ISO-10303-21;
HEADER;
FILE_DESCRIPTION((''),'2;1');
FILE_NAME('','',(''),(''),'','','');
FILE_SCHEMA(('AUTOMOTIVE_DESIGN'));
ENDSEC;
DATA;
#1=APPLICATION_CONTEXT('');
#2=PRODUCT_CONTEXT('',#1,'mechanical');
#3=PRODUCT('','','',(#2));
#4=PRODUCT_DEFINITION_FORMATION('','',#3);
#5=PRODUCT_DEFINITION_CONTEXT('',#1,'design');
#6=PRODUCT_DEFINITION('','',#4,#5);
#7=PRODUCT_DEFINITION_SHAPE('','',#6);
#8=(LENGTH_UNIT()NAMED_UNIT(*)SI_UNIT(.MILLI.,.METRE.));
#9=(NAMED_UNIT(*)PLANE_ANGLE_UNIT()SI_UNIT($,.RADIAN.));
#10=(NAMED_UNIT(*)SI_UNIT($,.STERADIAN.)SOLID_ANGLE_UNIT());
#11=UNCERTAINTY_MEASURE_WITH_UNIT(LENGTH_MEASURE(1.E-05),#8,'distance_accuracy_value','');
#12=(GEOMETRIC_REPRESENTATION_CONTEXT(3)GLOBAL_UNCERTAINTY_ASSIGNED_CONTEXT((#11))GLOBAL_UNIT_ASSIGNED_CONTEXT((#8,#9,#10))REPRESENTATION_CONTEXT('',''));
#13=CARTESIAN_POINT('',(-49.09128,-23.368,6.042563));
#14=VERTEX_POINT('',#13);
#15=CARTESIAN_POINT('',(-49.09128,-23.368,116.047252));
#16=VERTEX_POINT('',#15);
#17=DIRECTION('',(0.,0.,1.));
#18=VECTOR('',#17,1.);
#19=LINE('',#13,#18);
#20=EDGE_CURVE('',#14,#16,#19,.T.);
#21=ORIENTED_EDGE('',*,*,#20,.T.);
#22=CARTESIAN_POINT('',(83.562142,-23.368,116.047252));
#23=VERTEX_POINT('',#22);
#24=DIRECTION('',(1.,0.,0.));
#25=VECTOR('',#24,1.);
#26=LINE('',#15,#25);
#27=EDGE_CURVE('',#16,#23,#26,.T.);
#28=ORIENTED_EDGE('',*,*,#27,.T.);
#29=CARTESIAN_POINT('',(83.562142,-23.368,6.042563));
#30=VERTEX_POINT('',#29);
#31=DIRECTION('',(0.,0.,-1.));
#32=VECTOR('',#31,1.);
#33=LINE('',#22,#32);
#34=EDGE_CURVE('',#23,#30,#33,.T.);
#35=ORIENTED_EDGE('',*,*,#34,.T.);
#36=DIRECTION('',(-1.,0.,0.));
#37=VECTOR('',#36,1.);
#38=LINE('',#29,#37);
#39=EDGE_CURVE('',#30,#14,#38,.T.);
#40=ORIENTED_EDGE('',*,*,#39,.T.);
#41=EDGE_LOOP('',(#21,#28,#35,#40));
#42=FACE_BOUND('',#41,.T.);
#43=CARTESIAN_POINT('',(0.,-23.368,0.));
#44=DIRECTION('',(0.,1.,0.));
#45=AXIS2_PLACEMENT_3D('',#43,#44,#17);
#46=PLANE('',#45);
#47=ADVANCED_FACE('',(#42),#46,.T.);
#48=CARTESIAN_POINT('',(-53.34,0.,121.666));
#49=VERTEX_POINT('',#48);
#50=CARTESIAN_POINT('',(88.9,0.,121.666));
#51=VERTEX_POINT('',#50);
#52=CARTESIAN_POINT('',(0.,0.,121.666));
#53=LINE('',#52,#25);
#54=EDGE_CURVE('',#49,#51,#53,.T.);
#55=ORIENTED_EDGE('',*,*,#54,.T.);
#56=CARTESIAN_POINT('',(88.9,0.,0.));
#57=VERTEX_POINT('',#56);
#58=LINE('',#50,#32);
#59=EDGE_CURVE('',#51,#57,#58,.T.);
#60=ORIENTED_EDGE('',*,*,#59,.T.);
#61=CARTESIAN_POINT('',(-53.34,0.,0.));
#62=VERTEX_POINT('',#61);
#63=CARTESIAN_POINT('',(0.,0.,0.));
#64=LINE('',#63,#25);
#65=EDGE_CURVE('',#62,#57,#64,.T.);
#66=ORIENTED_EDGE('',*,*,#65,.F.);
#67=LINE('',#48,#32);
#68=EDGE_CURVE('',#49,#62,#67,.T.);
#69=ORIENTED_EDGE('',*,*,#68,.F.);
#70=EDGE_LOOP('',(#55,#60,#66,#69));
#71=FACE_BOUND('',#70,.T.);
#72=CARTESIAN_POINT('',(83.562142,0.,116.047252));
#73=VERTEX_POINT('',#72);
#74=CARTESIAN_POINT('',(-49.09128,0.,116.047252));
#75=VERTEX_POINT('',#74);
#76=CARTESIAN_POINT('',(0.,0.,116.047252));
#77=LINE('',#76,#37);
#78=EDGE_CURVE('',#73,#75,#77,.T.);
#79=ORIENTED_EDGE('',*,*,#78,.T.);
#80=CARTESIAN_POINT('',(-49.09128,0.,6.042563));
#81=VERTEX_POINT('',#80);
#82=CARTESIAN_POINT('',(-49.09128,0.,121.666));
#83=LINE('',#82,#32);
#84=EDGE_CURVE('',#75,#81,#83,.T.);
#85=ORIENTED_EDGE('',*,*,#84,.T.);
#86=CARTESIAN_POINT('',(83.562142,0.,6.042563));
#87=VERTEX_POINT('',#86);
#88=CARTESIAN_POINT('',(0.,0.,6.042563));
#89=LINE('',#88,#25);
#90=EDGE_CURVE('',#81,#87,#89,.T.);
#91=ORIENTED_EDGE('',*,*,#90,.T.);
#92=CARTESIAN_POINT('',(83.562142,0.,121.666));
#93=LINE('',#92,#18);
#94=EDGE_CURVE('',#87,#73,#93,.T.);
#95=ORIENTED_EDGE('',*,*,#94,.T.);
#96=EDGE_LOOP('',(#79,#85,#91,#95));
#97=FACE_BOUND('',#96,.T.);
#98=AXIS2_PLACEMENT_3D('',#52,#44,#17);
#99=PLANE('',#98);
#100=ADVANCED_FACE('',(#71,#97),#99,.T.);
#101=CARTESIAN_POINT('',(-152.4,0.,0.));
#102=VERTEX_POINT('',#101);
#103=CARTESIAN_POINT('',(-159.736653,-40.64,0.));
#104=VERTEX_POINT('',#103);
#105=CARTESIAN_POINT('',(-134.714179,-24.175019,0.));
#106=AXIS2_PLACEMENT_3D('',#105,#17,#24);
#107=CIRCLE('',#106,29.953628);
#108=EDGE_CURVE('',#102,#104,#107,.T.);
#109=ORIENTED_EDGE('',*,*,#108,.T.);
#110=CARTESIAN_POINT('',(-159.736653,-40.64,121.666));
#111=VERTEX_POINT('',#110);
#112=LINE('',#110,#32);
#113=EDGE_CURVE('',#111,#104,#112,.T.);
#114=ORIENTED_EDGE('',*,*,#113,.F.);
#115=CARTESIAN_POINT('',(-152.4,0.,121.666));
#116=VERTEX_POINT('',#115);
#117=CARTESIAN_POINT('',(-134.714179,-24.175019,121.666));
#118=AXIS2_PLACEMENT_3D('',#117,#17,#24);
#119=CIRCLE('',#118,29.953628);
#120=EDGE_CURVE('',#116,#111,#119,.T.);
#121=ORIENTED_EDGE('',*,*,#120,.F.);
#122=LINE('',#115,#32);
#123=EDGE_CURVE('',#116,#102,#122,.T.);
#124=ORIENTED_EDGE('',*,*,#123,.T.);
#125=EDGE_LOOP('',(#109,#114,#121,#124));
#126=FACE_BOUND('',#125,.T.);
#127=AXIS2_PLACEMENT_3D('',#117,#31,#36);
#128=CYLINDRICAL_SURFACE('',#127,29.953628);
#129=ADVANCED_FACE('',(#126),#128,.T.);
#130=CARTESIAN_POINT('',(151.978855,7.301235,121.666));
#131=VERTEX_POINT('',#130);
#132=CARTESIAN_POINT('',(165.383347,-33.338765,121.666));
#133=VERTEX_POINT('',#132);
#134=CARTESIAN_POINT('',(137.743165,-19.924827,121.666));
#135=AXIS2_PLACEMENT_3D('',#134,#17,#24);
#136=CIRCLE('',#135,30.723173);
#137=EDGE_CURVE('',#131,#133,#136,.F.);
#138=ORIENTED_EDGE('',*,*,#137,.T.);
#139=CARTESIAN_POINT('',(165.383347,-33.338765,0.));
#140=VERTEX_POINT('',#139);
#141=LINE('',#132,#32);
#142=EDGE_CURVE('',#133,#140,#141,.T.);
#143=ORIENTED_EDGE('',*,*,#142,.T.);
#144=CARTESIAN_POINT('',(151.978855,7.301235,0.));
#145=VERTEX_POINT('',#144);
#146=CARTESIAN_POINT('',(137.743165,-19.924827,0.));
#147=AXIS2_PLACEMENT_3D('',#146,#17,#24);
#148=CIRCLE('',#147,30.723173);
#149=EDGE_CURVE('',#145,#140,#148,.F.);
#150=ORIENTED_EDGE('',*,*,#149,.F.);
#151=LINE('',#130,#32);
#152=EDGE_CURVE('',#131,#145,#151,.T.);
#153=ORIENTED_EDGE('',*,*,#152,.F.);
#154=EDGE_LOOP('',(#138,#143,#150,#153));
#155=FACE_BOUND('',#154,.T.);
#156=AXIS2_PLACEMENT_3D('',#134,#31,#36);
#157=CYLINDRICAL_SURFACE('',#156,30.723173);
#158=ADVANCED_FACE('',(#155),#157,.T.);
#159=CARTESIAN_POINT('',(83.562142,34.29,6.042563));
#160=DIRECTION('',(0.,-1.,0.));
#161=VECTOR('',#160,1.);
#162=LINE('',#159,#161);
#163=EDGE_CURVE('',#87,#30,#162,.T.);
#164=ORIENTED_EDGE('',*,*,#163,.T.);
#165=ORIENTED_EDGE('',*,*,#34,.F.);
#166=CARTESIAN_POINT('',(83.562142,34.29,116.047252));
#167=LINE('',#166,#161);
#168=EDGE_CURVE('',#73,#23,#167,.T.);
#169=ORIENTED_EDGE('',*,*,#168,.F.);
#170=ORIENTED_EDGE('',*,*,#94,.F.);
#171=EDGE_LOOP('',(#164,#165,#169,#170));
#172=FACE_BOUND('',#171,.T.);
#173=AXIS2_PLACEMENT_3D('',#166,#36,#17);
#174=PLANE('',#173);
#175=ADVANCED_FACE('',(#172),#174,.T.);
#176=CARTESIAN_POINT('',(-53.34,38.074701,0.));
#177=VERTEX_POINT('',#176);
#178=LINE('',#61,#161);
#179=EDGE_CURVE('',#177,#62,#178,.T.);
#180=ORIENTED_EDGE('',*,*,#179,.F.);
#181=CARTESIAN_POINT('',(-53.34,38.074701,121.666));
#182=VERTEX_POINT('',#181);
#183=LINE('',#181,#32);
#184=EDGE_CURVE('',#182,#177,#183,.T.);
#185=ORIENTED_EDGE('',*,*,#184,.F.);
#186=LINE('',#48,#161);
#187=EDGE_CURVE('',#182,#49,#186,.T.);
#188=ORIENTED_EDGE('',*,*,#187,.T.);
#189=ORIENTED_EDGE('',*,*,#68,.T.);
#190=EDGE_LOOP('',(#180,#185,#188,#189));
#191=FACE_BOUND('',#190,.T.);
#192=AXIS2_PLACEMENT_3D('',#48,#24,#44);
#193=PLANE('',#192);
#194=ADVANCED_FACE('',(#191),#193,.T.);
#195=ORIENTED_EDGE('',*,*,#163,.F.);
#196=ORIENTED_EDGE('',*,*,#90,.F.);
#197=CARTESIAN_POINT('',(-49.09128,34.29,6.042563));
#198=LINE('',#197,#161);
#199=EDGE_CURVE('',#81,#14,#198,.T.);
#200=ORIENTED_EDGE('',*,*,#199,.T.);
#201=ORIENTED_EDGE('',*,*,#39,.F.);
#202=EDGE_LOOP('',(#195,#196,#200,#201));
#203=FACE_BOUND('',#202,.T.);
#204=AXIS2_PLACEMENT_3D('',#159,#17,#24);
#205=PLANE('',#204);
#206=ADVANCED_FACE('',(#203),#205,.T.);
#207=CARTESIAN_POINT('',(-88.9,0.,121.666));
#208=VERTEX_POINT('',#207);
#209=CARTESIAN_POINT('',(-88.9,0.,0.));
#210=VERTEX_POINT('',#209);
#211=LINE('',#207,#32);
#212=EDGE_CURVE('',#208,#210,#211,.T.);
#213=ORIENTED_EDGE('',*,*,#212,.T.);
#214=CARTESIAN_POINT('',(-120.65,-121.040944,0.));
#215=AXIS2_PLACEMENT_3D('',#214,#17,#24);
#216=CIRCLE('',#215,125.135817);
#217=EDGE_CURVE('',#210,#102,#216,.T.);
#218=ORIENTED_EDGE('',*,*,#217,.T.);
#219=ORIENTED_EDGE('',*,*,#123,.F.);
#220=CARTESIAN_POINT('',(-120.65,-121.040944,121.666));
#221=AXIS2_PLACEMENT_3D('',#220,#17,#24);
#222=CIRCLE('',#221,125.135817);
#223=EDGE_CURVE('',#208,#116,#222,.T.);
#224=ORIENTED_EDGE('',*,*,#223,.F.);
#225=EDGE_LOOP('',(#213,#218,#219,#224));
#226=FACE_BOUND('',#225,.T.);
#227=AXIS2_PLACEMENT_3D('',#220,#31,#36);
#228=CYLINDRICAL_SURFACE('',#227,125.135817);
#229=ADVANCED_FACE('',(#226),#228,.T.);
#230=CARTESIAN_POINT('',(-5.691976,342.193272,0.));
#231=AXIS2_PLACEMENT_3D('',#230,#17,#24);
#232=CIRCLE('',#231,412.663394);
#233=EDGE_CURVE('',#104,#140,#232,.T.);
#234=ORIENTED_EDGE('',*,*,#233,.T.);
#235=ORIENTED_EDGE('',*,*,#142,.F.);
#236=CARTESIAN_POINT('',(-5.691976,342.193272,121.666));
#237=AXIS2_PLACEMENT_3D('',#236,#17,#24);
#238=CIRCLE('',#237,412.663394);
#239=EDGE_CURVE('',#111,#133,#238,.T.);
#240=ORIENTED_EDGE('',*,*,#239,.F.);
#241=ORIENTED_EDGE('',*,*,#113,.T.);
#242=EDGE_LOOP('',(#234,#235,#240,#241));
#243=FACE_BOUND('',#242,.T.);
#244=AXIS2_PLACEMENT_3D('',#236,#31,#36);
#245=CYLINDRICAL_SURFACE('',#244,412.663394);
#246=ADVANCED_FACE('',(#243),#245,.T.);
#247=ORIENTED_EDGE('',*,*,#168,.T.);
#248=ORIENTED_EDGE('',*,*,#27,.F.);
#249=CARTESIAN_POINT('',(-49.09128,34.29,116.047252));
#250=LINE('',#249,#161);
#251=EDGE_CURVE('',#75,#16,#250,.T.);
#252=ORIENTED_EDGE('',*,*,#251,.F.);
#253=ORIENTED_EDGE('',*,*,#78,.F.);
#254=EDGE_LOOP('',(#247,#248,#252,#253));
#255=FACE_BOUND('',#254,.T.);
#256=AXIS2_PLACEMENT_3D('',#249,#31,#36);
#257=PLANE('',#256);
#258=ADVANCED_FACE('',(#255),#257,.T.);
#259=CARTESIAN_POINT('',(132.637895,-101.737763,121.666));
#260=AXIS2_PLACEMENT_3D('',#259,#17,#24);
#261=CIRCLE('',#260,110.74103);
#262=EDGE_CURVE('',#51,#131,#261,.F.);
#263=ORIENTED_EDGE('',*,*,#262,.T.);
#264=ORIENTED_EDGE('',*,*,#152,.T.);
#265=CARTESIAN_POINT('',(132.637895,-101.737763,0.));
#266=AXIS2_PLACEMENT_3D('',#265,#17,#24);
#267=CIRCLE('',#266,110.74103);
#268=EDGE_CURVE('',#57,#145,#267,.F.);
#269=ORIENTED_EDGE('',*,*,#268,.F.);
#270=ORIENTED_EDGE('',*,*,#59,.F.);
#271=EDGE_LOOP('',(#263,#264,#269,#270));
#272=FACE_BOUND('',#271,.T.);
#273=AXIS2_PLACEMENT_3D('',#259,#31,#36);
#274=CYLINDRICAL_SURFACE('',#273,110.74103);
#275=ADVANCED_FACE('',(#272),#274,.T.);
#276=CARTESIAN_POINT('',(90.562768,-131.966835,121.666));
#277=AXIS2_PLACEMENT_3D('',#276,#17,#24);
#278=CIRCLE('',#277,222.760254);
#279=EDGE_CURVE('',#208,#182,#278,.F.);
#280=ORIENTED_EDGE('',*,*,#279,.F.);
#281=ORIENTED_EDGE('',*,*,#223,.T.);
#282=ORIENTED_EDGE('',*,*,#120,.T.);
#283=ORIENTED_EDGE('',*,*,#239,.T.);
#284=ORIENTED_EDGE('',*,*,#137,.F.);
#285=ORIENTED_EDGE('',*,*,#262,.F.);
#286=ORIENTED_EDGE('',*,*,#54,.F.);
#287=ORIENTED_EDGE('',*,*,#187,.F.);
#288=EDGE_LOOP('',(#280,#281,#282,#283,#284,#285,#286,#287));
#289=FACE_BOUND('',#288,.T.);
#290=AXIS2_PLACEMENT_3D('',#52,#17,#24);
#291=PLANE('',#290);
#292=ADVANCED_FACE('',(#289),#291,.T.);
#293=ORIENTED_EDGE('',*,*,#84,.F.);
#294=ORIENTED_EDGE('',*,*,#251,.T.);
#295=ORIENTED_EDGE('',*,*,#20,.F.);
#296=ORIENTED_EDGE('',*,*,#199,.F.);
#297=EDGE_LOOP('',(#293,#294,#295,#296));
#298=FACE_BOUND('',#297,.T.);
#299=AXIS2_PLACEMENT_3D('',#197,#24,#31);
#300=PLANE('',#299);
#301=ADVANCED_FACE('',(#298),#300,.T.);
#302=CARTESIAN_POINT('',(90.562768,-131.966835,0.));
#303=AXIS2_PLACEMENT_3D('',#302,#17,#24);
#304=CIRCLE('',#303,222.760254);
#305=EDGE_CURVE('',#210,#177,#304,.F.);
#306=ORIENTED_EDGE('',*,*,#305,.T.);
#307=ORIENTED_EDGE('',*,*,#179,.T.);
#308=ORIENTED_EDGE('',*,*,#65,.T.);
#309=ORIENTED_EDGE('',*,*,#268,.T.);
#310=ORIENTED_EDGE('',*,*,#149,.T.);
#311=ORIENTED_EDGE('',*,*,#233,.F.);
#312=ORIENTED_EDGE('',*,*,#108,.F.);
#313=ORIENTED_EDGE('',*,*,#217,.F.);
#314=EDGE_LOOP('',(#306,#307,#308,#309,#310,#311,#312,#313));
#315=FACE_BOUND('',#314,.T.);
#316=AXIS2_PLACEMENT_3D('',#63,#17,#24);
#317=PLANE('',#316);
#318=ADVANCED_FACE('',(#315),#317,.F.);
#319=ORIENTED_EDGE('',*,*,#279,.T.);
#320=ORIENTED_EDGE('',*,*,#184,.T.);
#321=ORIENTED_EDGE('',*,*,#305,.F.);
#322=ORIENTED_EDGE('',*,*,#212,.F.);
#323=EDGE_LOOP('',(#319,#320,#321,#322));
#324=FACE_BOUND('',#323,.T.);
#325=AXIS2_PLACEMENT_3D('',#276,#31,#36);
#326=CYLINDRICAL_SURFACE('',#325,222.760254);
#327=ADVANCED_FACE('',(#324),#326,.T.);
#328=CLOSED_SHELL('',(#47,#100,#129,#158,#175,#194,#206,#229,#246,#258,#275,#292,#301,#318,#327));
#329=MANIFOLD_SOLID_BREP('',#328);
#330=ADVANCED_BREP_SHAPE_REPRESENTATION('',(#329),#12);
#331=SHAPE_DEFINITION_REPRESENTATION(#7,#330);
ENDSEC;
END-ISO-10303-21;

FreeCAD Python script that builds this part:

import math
import FreeCAD as App
import Part
import Sketcher

V = App.Vector
Q = App.Units.Quantity


def add_polygon(sketch, points):
    """Adds a closed chain of lines whose ends are joined by coincident constraints."""
    first, n = sketch.GeometryCount, len(points)
    for a, b in zip(points, points[1:] + points[:1]):
        sketch.addGeometry(Part.LineSegment(App.Vector(*a, 0), App.Vector(*b, 0)), False)
    for i in range(n):
        sketch.addConstraint(Sketcher.Constraint("Coincident", first + i, 2, first + (i + 1) % n, 1))

doc = App.newDocument("Part")
body = doc.addObject("PartDesign::Body", "Body")

# Sketch on XY plane
sketch1 = doc.addObject("Sketcher::SketchObject", "Sketch")
body.addObject(sketch1)
sketch1.AttachmentSupport = (doc.XY_Plane, [""])
sketch1.MapMode = "FlatFace"
sketch1.addGeometry([
    Part.LineSegment(V(89, 0, 0), V(-53, 0, 0)),  # 0
    Part.LineSegment(V(-53, 0, 0), V(-53, 38, 0)),  # 1
    Part.ArcOfCircle(Part.Circle(V(91, -132, 0), V(0, 0, 1), 223), math.radians(130.24), math.radians(143.67)),  # 2
    Part.ArcOfCircle(Part.Circle(V(-121, -121, 0), V(0, 0, 1), 125), math.radians(75), math.radians(105)),  # 3
    Part.ArcOfCircle(Part.Circle(V(-135, -24, 0), V(0, 0, 1), 30), math.radians(126), math.radians(213)),  # 4
    Part.ArcOfCircle(Part.Circle(V(-6, 342, 0), V(0, 0, 1), 413), math.radians(-112), math.radians(-66)),  # 5
    Part.ArcOfCircle(Part.Circle(V(138, -20, 0), V(0, 0, 1), 31), math.radians(-26), math.radians(62)),  # 6
    Part.ArcOfCircle(Part.Circle(V(133, -102, 0), V(0, 0, 1), 111), math.radians(80), math.radians(113)),  # 7
], False)
sketch1.addConstraint([
    Sketcher.Constraint("Coincident", 0, 2, 1, 1),
    Sketcher.Constraint("Coincident", 1, 2, 2, 1),
    Sketcher.Constraint("Coincident", 2, 2, 3, 1),
    Sketcher.Constraint("Coincident", 3, 2, 4, 1),
    Sketcher.Constraint("Coincident", 4, 2, 5, 1),
    Sketcher.Constraint("Coincident", 5, 2, 6, 1),
    Sketcher.Constraint("Coincident", 6, 2, 7, 1),
    Sketcher.Constraint("Coincident", 7, 2, 0, 1),
    Sketcher.Constraint("Horizontal", 0),
    Sketcher.Constraint("Vertical", 1),
    Sketcher.Constraint("Symmetric", 2, 2, 7, 2, -1, 1),
    Sketcher.Constraint("PointOnObject", 0, 2, -1),
    Sketcher.Constraint("PointOnObject", 3, 2, -1),
    Sketcher.Constraint("DistanceX", 0, 2, 0, 1, Q("5.6 in")),
    Sketcher.Constraint("DistanceX", 3, 2, -1, 1, Q("6 in")),
    Sketcher.Constraint("DistanceX", 0, 2, -1, 1, Q("2.1 in")),
    Sketcher.Constraint("DistanceY", 4, 2, -1, 1, Q("1.6 in")),
    Sketcher.Constraint("DistanceY", 5, 2, 6, 2, Q("1.6 in")),
    Sketcher.Constraint("Radius", 7, 110.74103),
    Sketcher.Constraint("DistanceY", 1, 1, 1, 2, 38.074701),
    Sketcher.Constraint("Radius", 2, 222.760253),
    Sketcher.Constraint("Radius", 3, 125.135817),
    Sketcher.Constraint("Radius", 4, 29.953628),
    Sketcher.Constraint("Radius", 5, 412.663394),
    Sketcher.Constraint("Radius", 6, 30.723173),
    Sketcher.Constraint("DistanceY", 6, 3, 5, 3, 362.118099),
    Sketcher.Constraint("DistanceX", 4, 3, -1, 1, 134.714179),
    Sketcher.Constraint("DistanceY", -1, 1, 5, 3, 342.193272),
    Sketcher.Constraint("DistanceX", 5, 3, 6, 3, 143.435141),
])
pad1 = doc.addObject("PartDesign::Pad", "Pad")
body.addObject(pad1)
pad1.Profile = sketch1
pad1.Length = Q("4.79 in")

# Sketch on XZ plane
sketch2 = doc.addObject("Sketcher::SketchObject", "Sketch001")
body.addObject(sketch2)
sketch2.AttachmentSupport = (doc.XZ_Plane, [""])
sketch2.MapMode = "FlatFace"
add_polygon(sketch2, [(-49, 6), (-49, 116), (84, 116), (84, 6)])  # lines 0-3
sketch2.addConstraint([
    Sketcher.Constraint("Vertical", 0),
    Sketcher.Constraint("Horizontal", 1),
    Sketcher.Constraint("Vertical", 2),
    Sketcher.Constraint("Horizontal", 3),
    Sketcher.Constraint("DistanceY", 0, 1, 0, 2, 110.004689),
    Sketcher.Constraint("DistanceX", 1, 1, 1, 2, 132.653423),
    Sketcher.Constraint("DistanceX", 0, 2, -1, 1, 49.09128),
    Sketcher.Constraint("DistanceY", -1, 1, 0, 2, 116.047252),
])
pocket1 = doc.addObject("PartDesign::Pocket", "Pocket")
body.addObject(pocket1)
pocket1.Profile = sketch2
pocket1.Type = "TwoLengths"
pocket1.Length = Q("1.35 in")
pocket1.Length2 = Q("0.92 in")

doc.recompute()
